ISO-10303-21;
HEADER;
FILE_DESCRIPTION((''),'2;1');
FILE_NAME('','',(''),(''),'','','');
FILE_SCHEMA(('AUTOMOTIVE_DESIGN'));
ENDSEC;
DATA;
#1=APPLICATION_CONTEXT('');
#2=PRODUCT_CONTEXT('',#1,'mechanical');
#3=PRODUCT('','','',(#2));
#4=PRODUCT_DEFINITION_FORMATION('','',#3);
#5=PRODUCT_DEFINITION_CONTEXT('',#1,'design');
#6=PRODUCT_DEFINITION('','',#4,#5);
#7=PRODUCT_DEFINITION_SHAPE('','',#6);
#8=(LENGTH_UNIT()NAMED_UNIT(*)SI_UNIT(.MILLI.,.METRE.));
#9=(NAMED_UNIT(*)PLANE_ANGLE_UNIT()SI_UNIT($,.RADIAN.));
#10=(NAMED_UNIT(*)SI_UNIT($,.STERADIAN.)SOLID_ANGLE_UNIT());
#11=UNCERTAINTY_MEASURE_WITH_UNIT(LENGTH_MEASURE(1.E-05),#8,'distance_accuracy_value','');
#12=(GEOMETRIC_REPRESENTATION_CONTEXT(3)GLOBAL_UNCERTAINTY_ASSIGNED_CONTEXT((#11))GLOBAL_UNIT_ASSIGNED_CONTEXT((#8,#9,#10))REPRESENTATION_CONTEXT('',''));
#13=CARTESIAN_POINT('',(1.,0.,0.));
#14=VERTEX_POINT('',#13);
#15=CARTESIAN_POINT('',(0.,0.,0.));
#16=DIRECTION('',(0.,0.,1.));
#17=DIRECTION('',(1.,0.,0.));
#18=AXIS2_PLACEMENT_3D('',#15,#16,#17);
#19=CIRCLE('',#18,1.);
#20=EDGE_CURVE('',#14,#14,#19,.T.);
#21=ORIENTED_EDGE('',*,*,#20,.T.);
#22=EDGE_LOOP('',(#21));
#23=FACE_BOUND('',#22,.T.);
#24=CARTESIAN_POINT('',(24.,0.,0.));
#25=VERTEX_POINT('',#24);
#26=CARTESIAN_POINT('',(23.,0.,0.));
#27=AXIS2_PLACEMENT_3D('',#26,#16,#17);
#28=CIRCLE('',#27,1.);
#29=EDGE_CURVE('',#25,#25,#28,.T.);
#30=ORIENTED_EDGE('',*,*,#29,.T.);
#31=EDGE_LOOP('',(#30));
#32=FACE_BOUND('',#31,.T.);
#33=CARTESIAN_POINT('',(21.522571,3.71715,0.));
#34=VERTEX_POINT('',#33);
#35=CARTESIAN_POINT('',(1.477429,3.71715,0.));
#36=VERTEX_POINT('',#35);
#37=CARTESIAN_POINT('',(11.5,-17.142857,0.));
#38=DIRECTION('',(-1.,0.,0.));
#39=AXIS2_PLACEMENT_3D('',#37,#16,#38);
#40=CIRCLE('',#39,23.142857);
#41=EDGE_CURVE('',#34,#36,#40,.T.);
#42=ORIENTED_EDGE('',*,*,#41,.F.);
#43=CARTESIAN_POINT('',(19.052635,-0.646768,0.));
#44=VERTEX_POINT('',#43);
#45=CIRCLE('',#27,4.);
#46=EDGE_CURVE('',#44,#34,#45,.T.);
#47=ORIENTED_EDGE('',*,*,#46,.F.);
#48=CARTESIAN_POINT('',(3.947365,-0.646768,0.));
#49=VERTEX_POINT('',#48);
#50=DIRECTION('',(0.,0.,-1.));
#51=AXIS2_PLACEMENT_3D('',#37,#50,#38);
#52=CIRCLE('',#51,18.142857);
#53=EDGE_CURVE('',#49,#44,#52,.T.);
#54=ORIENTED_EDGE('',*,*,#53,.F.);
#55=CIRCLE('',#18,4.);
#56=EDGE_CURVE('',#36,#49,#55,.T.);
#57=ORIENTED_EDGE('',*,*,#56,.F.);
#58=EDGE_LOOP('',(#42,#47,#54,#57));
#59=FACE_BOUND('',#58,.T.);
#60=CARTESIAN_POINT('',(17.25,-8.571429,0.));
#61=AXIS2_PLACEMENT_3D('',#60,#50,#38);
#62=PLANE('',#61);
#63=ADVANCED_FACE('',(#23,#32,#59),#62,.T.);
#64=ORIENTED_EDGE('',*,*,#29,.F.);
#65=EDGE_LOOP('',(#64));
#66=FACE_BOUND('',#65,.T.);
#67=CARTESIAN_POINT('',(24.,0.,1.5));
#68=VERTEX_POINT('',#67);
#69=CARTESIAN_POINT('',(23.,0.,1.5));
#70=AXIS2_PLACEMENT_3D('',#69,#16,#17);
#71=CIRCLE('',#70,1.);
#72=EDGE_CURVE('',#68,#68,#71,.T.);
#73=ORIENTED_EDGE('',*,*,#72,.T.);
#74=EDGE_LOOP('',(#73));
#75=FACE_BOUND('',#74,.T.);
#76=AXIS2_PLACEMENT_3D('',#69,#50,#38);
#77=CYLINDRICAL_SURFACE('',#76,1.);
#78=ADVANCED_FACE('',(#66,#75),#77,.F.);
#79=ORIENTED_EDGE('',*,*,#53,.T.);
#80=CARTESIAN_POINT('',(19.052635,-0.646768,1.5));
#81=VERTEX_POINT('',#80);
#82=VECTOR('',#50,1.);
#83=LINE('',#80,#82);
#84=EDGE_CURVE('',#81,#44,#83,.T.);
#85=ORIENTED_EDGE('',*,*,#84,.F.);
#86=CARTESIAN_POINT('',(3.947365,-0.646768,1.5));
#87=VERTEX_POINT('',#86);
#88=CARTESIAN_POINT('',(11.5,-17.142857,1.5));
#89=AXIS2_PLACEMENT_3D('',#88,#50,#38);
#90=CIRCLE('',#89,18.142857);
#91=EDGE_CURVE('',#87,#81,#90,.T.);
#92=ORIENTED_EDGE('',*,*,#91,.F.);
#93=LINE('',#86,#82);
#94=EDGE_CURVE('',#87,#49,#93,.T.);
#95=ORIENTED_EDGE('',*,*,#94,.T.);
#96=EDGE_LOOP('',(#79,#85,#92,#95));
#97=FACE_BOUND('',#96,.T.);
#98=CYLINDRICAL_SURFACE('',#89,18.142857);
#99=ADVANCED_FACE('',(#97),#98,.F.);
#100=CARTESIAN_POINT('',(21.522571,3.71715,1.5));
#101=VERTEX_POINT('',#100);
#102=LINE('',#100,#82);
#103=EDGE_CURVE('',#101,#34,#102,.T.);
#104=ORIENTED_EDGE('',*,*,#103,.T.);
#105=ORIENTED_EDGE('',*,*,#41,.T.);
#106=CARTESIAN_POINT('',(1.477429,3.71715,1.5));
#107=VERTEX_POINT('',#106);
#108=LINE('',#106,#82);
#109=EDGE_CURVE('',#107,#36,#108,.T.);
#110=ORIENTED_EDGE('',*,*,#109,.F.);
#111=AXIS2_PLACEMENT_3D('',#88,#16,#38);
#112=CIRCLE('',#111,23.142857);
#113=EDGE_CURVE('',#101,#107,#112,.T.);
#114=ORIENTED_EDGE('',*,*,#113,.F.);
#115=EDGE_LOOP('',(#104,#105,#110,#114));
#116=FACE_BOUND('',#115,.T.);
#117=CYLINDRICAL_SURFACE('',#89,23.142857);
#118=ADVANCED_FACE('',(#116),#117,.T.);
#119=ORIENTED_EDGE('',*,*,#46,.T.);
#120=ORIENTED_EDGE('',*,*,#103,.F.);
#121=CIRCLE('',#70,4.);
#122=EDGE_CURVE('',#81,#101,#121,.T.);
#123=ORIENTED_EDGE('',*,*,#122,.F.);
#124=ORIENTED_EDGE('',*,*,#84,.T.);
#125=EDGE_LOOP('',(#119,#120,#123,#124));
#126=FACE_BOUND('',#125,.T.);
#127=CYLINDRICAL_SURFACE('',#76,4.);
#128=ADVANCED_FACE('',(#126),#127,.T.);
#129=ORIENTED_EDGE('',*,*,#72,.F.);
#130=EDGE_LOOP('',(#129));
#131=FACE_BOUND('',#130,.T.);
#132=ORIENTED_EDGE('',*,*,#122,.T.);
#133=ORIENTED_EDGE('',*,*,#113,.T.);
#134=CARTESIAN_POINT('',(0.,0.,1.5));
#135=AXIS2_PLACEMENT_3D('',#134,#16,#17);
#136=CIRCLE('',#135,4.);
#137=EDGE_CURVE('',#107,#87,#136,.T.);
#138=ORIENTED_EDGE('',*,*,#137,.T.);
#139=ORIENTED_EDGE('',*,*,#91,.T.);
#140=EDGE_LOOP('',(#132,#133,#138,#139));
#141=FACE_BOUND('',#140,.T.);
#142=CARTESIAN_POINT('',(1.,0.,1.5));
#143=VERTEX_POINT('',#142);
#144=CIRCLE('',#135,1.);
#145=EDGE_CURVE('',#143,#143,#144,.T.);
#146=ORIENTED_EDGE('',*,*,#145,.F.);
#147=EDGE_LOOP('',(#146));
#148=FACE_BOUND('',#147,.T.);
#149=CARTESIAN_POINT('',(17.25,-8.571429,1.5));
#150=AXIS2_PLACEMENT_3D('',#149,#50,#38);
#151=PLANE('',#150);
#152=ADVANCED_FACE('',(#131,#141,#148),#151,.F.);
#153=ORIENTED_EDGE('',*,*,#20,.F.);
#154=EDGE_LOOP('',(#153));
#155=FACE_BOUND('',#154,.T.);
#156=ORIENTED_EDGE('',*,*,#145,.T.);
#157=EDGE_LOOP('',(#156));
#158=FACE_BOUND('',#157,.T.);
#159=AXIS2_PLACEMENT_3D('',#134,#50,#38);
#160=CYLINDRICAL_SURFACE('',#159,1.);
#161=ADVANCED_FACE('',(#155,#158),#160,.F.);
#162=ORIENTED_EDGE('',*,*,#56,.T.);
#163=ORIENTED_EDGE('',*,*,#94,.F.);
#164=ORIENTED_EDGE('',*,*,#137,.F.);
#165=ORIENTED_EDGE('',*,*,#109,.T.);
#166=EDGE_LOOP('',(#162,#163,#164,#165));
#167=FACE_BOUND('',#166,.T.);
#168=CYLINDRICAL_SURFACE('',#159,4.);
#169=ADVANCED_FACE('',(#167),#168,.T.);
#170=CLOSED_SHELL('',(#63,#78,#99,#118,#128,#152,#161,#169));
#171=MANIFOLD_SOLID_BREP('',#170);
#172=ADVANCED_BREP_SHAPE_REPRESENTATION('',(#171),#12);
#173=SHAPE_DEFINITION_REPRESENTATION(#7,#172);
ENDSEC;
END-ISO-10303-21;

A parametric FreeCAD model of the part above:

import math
import FreeCAD as App
import Part
import Sketcher
Q = App.Units.Quantity

doc = App.newDocument("Part")
body = doc.addObject("PartDesign::Body", "Body")

# Sketch on XY plane
sketch1 = doc.addObject("Sketcher::SketchObject", "Sketch")
body.addObject(sketch1)
sketch1.AttachmentSupport = (doc.XY_Plane, [""])
sketch1.MapMode = "FlatFace"
sketch1.addGeometry(Part.ArcOfCircle(Part.Circle(App.Vector(0, 0, 0), App.Vector(0, 0, 1), 4), math.radians(68), math.radians(351)), False)
sketch1.addGeometry(Part.ArcOfCircle(Part.Circle(App.Vector(11.5, -17.1, 0), App.Vector(0, 0, 1), 18.1), math.radians(65), math.radians(115)), False)
sketch1.addGeometry(Part.ArcOfCircle(Part.Circle(App.Vector(23, 0, 0), App.Vector(0, 0, 1), 4), math.radians(-171), math.radians(112)), False)
sketch1.addGeometry(Part.ArcOfCircle(Part.Circle(App.Vector(11.5, -17.1, 0), App.Vector(0, 0, 1), 23.1), math.radians(64), math.radians(116)), False)
sketch1.addGeometry(Part.Circle(App.Vector(0, 0, 0), App.Vector(0, 0, 1), 1), False)
sketch1.addGeometry(Part.Circle(App.Vector(23, 0, 0), App.Vector(0, 0, 1), 1), False)
sketch1.addConstraint(Sketcher.Constraint("Coincident", 0, 2, 1, 2))
sketch1.addConstraint(Sketcher.Constraint("Coincident", 1, 1, 2, 1))
sketch1.addConstraint(Sketcher.Constraint("Coincident", 2, 2, 3, 1))
sketch1.addConstraint(Sketcher.Constraint("Coincident", 3, 2, 0, 1))
sketch1.addConstraint(Sketcher.Constraint("Coincident", 0, 3, -1, 1))
sketch1.addConstraint(Sketcher.Constraint("Coincident", 4, 3, -1, 1))
sketch1.addConstraint(Sketcher.Constraint("Coincident", 3, 3, 1, 3))
sketch1.addConstraint(Sketcher.Constraint("Coincident", 5, 3, 2, 3))
sketch1.addConstraint(Sketcher.Constraint("Equal", 0, 2))
sketch1.addConstraint(Sketcher.Constraint("Equal", 4, 5))
sketch1.addConstraint(Sketcher.Constraint("PointOnObject", 2, 3, -1))
sketch1.addConstraint(Sketcher.Constraint("Horizontal", 0, 2, 1, 1))
sketch1.addConstraint(Sketcher.Constraint("Diameter", 4, Q("2 mm")))
sketch1.addConstraint(Sketcher.Constraint("Radius", 0, Q("4 mm")))
sketch1.addConstraint(Sketcher.Constraint("DistanceX", -1, 1, 2, 3, Q("23 mm")))
sketch1.addConstraint(Sketcher.Constraint("Radius", 1, Q("18.142857 mm")))
sketch1.addConstraint(Sketcher.Constraint("Radius", 3, Q("23.142857 mm")))
sketch1.addConstraint(Sketcher.Constraint("DistanceX", -1, 1, 2, 2, Q("21.522571 mm")))
pad1 = doc.addObject("PartDesign::Pad", "Pad")
body.addObject(pad1)
pad1.Profile = sketch1
pad1.Length = 1.5

doc.recompute()
